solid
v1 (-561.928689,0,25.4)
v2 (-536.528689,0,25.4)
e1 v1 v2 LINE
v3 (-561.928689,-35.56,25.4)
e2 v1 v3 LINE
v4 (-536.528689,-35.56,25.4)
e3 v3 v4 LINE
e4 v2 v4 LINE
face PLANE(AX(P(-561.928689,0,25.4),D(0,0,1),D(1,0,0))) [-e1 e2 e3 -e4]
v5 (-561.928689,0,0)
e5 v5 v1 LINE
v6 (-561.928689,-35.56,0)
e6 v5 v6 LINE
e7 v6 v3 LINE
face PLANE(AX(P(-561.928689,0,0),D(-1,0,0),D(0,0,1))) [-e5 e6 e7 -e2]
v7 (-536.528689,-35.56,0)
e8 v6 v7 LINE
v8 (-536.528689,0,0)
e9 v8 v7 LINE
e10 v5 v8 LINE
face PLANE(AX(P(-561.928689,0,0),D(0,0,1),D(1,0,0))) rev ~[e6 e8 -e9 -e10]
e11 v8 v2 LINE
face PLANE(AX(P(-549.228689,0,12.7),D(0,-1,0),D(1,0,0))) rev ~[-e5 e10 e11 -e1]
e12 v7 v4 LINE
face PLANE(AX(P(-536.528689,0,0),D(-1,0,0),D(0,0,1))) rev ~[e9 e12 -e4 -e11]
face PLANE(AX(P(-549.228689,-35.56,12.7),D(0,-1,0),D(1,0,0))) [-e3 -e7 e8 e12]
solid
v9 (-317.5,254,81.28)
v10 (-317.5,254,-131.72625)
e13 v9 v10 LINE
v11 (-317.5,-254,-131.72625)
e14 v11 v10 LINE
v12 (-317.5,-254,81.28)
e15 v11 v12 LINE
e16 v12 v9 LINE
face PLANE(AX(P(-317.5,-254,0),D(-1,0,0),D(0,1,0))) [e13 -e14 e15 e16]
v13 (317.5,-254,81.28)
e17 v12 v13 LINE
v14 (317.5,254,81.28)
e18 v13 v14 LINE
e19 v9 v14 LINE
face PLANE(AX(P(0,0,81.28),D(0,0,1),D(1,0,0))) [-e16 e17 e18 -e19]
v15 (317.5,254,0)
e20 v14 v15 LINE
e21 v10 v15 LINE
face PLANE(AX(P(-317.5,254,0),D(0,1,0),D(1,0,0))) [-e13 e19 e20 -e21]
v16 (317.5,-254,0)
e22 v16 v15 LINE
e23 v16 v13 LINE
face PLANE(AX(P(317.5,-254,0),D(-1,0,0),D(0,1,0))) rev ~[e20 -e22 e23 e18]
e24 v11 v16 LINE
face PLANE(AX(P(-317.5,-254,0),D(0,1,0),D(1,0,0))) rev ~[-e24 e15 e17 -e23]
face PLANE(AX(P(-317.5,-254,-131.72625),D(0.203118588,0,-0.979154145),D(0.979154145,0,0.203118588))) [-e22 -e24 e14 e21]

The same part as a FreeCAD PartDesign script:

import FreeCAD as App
import Part
import Sketcher

V = App.Vector
Q = App.Units.Quantity


def add_polygon(sketch, points):
    """Adds a closed chain of lines whose ends are joined by coincident constraints."""
    first, n = sketch.GeometryCount, len(points)
    for a, b in zip(points, points[1:] + points[:1]):
        sketch.addGeometry(Part.LineSegment(App.Vector(*a, 0), App.Vector(*b, 0)), False)
    for i in range(n):
        sketch.addConstraint(Sketcher.Constraint("Coincident", first + i, 2, first + (i + 1) % n, 1))

doc = App.newDocument("Part")
body = doc.addObject("PartDesign::Body", "Body")

sketch1 = body.newObject("Sketcher::SketchObject", "Sketch")
sketch1.AttachmentSupport = (doc.getObject("XY_Plane"), [""])
sketch1.MapMode = "FlatFace"
add_polygon(sketch1, [(-317.5, 254), (-317.5, -254), (317.5, -254), (317.5, 254)])
sketch1.addConstraint(Sketcher.Constraint("Vertical", 0))
sketch1.addConstraint(Sketcher.Constraint("Horizontal", 1))
sketch1.addConstraint(Sketcher.Constraint("Vertical", 2))
sketch1.addConstraint(Sketcher.Constraint("Horizontal", 3))
sketch1.addConstraint(Sketcher.Constraint("Symmetric", 0, 2, 2, 2, -1, 1))
sketch1.addConstraint(Sketcher.Constraint("DistanceX", 1, 1, 1, 2, Q("25 in")))
sketch1.addConstraint(Sketcher.Constraint("DistanceY", 0, 2, 0, 1, Q("20 in")))
pad1 = body.newObject("PartDesign::Pad", "Pad")
pad1.Profile = sketch1
pad1.Length = Q("3.2 in")

sketch2 = body.newObject("Sketcher::SketchObject", "Sketch001")
sketch2.AttachmentSupport = (doc.getObject("XZ_Plane"), [""])
sketch2.MapMode = "FlatFace"
sketch2.AttachmentOffset = App.Placement(V(0, 0, 10 * 25.4), App.Rotation())
add_polygon(sketch2, [(317.5, 19.807838), (-317.5, 26.855934), (-317.5, -131.72625), (317.5, 0)])
sketch2.addConstraint(Sketcher.Constraint("Vertical", 1))
sketch2.addConstraint(Sketcher.Constraint("Vertical", 3))
sketch2.addConstraint(Sketcher.Constraint("PointOnObject", 2, 2, -1))
sketch2.addConstraint(Sketcher.Constraint("DistanceX", 0, 2, 2, 2, Q("25 in")))
sketch2.addConstraint(Sketcher.Constraint("DistanceX", 0, 2, -1, 1, Q("12.5 in")))
sketch2.addConstraint(Sketcher.Constraint("DistanceY", 3, 1, 3, 2, 19.807838))
sketch2.addConstraint(Sketcher.Constraint("Distance", 2, 648.518932))
sketch2.addConstraint(Sketcher.Constraint("DistanceY", 1, 2, 1, 1, 158.582184))
pad2 = body.newObject("PartDesign::Pad", "Pad001")
pad2.Profile = sketch2
pad2.Length = Q("20 in")
pad2.Reversed = True
body2 = doc.addObject("PartDesign::Body", "Body001")

sketch3 = body2.newObject("Sketcher::SketchObject", "Sketch002")
sketch3.AttachmentSupport = (doc.getObject("XZ_Plane001"), [""])
sketch3.MapMode = "FlatFace"
add_polygon(sketch3, [(-561.928689, 25.4), (-561.928689, 0), (-536.528689, 0), (-536.528689, 25.4)])
sketch3.addConstraint(Sketcher.Constraint("Vertical", 0))
sketch3.addConstraint(Sketcher.Constraint("Horizontal", 1))
sketch3.addConstraint(Sketcher.Constraint("Vertical", 2))
sketch3.addConstraint(Sketcher.Constraint("Horizontal", 3))
sketch3.addConstraint(Sketcher.Constraint("PointOnObject", 0, 2, -1))
sketch3.addConstraint(Sketcher.Constraint("Equal", 3, 0))
sketch3.addConstraint(Sketcher.Constraint("DistanceX", 1, 1, 1, 2, Q("1 in")))
sketch3.addConstraint(Sketcher.Constraint("DistanceX", 0, 2, -1, 1, 561.928689))
pad3 = body2.newObject("PartDesign::Pad", "Pad002")
pad3.Profile = sketch3
pad3.Length = Q("1.4 in")

doc.recompute()
